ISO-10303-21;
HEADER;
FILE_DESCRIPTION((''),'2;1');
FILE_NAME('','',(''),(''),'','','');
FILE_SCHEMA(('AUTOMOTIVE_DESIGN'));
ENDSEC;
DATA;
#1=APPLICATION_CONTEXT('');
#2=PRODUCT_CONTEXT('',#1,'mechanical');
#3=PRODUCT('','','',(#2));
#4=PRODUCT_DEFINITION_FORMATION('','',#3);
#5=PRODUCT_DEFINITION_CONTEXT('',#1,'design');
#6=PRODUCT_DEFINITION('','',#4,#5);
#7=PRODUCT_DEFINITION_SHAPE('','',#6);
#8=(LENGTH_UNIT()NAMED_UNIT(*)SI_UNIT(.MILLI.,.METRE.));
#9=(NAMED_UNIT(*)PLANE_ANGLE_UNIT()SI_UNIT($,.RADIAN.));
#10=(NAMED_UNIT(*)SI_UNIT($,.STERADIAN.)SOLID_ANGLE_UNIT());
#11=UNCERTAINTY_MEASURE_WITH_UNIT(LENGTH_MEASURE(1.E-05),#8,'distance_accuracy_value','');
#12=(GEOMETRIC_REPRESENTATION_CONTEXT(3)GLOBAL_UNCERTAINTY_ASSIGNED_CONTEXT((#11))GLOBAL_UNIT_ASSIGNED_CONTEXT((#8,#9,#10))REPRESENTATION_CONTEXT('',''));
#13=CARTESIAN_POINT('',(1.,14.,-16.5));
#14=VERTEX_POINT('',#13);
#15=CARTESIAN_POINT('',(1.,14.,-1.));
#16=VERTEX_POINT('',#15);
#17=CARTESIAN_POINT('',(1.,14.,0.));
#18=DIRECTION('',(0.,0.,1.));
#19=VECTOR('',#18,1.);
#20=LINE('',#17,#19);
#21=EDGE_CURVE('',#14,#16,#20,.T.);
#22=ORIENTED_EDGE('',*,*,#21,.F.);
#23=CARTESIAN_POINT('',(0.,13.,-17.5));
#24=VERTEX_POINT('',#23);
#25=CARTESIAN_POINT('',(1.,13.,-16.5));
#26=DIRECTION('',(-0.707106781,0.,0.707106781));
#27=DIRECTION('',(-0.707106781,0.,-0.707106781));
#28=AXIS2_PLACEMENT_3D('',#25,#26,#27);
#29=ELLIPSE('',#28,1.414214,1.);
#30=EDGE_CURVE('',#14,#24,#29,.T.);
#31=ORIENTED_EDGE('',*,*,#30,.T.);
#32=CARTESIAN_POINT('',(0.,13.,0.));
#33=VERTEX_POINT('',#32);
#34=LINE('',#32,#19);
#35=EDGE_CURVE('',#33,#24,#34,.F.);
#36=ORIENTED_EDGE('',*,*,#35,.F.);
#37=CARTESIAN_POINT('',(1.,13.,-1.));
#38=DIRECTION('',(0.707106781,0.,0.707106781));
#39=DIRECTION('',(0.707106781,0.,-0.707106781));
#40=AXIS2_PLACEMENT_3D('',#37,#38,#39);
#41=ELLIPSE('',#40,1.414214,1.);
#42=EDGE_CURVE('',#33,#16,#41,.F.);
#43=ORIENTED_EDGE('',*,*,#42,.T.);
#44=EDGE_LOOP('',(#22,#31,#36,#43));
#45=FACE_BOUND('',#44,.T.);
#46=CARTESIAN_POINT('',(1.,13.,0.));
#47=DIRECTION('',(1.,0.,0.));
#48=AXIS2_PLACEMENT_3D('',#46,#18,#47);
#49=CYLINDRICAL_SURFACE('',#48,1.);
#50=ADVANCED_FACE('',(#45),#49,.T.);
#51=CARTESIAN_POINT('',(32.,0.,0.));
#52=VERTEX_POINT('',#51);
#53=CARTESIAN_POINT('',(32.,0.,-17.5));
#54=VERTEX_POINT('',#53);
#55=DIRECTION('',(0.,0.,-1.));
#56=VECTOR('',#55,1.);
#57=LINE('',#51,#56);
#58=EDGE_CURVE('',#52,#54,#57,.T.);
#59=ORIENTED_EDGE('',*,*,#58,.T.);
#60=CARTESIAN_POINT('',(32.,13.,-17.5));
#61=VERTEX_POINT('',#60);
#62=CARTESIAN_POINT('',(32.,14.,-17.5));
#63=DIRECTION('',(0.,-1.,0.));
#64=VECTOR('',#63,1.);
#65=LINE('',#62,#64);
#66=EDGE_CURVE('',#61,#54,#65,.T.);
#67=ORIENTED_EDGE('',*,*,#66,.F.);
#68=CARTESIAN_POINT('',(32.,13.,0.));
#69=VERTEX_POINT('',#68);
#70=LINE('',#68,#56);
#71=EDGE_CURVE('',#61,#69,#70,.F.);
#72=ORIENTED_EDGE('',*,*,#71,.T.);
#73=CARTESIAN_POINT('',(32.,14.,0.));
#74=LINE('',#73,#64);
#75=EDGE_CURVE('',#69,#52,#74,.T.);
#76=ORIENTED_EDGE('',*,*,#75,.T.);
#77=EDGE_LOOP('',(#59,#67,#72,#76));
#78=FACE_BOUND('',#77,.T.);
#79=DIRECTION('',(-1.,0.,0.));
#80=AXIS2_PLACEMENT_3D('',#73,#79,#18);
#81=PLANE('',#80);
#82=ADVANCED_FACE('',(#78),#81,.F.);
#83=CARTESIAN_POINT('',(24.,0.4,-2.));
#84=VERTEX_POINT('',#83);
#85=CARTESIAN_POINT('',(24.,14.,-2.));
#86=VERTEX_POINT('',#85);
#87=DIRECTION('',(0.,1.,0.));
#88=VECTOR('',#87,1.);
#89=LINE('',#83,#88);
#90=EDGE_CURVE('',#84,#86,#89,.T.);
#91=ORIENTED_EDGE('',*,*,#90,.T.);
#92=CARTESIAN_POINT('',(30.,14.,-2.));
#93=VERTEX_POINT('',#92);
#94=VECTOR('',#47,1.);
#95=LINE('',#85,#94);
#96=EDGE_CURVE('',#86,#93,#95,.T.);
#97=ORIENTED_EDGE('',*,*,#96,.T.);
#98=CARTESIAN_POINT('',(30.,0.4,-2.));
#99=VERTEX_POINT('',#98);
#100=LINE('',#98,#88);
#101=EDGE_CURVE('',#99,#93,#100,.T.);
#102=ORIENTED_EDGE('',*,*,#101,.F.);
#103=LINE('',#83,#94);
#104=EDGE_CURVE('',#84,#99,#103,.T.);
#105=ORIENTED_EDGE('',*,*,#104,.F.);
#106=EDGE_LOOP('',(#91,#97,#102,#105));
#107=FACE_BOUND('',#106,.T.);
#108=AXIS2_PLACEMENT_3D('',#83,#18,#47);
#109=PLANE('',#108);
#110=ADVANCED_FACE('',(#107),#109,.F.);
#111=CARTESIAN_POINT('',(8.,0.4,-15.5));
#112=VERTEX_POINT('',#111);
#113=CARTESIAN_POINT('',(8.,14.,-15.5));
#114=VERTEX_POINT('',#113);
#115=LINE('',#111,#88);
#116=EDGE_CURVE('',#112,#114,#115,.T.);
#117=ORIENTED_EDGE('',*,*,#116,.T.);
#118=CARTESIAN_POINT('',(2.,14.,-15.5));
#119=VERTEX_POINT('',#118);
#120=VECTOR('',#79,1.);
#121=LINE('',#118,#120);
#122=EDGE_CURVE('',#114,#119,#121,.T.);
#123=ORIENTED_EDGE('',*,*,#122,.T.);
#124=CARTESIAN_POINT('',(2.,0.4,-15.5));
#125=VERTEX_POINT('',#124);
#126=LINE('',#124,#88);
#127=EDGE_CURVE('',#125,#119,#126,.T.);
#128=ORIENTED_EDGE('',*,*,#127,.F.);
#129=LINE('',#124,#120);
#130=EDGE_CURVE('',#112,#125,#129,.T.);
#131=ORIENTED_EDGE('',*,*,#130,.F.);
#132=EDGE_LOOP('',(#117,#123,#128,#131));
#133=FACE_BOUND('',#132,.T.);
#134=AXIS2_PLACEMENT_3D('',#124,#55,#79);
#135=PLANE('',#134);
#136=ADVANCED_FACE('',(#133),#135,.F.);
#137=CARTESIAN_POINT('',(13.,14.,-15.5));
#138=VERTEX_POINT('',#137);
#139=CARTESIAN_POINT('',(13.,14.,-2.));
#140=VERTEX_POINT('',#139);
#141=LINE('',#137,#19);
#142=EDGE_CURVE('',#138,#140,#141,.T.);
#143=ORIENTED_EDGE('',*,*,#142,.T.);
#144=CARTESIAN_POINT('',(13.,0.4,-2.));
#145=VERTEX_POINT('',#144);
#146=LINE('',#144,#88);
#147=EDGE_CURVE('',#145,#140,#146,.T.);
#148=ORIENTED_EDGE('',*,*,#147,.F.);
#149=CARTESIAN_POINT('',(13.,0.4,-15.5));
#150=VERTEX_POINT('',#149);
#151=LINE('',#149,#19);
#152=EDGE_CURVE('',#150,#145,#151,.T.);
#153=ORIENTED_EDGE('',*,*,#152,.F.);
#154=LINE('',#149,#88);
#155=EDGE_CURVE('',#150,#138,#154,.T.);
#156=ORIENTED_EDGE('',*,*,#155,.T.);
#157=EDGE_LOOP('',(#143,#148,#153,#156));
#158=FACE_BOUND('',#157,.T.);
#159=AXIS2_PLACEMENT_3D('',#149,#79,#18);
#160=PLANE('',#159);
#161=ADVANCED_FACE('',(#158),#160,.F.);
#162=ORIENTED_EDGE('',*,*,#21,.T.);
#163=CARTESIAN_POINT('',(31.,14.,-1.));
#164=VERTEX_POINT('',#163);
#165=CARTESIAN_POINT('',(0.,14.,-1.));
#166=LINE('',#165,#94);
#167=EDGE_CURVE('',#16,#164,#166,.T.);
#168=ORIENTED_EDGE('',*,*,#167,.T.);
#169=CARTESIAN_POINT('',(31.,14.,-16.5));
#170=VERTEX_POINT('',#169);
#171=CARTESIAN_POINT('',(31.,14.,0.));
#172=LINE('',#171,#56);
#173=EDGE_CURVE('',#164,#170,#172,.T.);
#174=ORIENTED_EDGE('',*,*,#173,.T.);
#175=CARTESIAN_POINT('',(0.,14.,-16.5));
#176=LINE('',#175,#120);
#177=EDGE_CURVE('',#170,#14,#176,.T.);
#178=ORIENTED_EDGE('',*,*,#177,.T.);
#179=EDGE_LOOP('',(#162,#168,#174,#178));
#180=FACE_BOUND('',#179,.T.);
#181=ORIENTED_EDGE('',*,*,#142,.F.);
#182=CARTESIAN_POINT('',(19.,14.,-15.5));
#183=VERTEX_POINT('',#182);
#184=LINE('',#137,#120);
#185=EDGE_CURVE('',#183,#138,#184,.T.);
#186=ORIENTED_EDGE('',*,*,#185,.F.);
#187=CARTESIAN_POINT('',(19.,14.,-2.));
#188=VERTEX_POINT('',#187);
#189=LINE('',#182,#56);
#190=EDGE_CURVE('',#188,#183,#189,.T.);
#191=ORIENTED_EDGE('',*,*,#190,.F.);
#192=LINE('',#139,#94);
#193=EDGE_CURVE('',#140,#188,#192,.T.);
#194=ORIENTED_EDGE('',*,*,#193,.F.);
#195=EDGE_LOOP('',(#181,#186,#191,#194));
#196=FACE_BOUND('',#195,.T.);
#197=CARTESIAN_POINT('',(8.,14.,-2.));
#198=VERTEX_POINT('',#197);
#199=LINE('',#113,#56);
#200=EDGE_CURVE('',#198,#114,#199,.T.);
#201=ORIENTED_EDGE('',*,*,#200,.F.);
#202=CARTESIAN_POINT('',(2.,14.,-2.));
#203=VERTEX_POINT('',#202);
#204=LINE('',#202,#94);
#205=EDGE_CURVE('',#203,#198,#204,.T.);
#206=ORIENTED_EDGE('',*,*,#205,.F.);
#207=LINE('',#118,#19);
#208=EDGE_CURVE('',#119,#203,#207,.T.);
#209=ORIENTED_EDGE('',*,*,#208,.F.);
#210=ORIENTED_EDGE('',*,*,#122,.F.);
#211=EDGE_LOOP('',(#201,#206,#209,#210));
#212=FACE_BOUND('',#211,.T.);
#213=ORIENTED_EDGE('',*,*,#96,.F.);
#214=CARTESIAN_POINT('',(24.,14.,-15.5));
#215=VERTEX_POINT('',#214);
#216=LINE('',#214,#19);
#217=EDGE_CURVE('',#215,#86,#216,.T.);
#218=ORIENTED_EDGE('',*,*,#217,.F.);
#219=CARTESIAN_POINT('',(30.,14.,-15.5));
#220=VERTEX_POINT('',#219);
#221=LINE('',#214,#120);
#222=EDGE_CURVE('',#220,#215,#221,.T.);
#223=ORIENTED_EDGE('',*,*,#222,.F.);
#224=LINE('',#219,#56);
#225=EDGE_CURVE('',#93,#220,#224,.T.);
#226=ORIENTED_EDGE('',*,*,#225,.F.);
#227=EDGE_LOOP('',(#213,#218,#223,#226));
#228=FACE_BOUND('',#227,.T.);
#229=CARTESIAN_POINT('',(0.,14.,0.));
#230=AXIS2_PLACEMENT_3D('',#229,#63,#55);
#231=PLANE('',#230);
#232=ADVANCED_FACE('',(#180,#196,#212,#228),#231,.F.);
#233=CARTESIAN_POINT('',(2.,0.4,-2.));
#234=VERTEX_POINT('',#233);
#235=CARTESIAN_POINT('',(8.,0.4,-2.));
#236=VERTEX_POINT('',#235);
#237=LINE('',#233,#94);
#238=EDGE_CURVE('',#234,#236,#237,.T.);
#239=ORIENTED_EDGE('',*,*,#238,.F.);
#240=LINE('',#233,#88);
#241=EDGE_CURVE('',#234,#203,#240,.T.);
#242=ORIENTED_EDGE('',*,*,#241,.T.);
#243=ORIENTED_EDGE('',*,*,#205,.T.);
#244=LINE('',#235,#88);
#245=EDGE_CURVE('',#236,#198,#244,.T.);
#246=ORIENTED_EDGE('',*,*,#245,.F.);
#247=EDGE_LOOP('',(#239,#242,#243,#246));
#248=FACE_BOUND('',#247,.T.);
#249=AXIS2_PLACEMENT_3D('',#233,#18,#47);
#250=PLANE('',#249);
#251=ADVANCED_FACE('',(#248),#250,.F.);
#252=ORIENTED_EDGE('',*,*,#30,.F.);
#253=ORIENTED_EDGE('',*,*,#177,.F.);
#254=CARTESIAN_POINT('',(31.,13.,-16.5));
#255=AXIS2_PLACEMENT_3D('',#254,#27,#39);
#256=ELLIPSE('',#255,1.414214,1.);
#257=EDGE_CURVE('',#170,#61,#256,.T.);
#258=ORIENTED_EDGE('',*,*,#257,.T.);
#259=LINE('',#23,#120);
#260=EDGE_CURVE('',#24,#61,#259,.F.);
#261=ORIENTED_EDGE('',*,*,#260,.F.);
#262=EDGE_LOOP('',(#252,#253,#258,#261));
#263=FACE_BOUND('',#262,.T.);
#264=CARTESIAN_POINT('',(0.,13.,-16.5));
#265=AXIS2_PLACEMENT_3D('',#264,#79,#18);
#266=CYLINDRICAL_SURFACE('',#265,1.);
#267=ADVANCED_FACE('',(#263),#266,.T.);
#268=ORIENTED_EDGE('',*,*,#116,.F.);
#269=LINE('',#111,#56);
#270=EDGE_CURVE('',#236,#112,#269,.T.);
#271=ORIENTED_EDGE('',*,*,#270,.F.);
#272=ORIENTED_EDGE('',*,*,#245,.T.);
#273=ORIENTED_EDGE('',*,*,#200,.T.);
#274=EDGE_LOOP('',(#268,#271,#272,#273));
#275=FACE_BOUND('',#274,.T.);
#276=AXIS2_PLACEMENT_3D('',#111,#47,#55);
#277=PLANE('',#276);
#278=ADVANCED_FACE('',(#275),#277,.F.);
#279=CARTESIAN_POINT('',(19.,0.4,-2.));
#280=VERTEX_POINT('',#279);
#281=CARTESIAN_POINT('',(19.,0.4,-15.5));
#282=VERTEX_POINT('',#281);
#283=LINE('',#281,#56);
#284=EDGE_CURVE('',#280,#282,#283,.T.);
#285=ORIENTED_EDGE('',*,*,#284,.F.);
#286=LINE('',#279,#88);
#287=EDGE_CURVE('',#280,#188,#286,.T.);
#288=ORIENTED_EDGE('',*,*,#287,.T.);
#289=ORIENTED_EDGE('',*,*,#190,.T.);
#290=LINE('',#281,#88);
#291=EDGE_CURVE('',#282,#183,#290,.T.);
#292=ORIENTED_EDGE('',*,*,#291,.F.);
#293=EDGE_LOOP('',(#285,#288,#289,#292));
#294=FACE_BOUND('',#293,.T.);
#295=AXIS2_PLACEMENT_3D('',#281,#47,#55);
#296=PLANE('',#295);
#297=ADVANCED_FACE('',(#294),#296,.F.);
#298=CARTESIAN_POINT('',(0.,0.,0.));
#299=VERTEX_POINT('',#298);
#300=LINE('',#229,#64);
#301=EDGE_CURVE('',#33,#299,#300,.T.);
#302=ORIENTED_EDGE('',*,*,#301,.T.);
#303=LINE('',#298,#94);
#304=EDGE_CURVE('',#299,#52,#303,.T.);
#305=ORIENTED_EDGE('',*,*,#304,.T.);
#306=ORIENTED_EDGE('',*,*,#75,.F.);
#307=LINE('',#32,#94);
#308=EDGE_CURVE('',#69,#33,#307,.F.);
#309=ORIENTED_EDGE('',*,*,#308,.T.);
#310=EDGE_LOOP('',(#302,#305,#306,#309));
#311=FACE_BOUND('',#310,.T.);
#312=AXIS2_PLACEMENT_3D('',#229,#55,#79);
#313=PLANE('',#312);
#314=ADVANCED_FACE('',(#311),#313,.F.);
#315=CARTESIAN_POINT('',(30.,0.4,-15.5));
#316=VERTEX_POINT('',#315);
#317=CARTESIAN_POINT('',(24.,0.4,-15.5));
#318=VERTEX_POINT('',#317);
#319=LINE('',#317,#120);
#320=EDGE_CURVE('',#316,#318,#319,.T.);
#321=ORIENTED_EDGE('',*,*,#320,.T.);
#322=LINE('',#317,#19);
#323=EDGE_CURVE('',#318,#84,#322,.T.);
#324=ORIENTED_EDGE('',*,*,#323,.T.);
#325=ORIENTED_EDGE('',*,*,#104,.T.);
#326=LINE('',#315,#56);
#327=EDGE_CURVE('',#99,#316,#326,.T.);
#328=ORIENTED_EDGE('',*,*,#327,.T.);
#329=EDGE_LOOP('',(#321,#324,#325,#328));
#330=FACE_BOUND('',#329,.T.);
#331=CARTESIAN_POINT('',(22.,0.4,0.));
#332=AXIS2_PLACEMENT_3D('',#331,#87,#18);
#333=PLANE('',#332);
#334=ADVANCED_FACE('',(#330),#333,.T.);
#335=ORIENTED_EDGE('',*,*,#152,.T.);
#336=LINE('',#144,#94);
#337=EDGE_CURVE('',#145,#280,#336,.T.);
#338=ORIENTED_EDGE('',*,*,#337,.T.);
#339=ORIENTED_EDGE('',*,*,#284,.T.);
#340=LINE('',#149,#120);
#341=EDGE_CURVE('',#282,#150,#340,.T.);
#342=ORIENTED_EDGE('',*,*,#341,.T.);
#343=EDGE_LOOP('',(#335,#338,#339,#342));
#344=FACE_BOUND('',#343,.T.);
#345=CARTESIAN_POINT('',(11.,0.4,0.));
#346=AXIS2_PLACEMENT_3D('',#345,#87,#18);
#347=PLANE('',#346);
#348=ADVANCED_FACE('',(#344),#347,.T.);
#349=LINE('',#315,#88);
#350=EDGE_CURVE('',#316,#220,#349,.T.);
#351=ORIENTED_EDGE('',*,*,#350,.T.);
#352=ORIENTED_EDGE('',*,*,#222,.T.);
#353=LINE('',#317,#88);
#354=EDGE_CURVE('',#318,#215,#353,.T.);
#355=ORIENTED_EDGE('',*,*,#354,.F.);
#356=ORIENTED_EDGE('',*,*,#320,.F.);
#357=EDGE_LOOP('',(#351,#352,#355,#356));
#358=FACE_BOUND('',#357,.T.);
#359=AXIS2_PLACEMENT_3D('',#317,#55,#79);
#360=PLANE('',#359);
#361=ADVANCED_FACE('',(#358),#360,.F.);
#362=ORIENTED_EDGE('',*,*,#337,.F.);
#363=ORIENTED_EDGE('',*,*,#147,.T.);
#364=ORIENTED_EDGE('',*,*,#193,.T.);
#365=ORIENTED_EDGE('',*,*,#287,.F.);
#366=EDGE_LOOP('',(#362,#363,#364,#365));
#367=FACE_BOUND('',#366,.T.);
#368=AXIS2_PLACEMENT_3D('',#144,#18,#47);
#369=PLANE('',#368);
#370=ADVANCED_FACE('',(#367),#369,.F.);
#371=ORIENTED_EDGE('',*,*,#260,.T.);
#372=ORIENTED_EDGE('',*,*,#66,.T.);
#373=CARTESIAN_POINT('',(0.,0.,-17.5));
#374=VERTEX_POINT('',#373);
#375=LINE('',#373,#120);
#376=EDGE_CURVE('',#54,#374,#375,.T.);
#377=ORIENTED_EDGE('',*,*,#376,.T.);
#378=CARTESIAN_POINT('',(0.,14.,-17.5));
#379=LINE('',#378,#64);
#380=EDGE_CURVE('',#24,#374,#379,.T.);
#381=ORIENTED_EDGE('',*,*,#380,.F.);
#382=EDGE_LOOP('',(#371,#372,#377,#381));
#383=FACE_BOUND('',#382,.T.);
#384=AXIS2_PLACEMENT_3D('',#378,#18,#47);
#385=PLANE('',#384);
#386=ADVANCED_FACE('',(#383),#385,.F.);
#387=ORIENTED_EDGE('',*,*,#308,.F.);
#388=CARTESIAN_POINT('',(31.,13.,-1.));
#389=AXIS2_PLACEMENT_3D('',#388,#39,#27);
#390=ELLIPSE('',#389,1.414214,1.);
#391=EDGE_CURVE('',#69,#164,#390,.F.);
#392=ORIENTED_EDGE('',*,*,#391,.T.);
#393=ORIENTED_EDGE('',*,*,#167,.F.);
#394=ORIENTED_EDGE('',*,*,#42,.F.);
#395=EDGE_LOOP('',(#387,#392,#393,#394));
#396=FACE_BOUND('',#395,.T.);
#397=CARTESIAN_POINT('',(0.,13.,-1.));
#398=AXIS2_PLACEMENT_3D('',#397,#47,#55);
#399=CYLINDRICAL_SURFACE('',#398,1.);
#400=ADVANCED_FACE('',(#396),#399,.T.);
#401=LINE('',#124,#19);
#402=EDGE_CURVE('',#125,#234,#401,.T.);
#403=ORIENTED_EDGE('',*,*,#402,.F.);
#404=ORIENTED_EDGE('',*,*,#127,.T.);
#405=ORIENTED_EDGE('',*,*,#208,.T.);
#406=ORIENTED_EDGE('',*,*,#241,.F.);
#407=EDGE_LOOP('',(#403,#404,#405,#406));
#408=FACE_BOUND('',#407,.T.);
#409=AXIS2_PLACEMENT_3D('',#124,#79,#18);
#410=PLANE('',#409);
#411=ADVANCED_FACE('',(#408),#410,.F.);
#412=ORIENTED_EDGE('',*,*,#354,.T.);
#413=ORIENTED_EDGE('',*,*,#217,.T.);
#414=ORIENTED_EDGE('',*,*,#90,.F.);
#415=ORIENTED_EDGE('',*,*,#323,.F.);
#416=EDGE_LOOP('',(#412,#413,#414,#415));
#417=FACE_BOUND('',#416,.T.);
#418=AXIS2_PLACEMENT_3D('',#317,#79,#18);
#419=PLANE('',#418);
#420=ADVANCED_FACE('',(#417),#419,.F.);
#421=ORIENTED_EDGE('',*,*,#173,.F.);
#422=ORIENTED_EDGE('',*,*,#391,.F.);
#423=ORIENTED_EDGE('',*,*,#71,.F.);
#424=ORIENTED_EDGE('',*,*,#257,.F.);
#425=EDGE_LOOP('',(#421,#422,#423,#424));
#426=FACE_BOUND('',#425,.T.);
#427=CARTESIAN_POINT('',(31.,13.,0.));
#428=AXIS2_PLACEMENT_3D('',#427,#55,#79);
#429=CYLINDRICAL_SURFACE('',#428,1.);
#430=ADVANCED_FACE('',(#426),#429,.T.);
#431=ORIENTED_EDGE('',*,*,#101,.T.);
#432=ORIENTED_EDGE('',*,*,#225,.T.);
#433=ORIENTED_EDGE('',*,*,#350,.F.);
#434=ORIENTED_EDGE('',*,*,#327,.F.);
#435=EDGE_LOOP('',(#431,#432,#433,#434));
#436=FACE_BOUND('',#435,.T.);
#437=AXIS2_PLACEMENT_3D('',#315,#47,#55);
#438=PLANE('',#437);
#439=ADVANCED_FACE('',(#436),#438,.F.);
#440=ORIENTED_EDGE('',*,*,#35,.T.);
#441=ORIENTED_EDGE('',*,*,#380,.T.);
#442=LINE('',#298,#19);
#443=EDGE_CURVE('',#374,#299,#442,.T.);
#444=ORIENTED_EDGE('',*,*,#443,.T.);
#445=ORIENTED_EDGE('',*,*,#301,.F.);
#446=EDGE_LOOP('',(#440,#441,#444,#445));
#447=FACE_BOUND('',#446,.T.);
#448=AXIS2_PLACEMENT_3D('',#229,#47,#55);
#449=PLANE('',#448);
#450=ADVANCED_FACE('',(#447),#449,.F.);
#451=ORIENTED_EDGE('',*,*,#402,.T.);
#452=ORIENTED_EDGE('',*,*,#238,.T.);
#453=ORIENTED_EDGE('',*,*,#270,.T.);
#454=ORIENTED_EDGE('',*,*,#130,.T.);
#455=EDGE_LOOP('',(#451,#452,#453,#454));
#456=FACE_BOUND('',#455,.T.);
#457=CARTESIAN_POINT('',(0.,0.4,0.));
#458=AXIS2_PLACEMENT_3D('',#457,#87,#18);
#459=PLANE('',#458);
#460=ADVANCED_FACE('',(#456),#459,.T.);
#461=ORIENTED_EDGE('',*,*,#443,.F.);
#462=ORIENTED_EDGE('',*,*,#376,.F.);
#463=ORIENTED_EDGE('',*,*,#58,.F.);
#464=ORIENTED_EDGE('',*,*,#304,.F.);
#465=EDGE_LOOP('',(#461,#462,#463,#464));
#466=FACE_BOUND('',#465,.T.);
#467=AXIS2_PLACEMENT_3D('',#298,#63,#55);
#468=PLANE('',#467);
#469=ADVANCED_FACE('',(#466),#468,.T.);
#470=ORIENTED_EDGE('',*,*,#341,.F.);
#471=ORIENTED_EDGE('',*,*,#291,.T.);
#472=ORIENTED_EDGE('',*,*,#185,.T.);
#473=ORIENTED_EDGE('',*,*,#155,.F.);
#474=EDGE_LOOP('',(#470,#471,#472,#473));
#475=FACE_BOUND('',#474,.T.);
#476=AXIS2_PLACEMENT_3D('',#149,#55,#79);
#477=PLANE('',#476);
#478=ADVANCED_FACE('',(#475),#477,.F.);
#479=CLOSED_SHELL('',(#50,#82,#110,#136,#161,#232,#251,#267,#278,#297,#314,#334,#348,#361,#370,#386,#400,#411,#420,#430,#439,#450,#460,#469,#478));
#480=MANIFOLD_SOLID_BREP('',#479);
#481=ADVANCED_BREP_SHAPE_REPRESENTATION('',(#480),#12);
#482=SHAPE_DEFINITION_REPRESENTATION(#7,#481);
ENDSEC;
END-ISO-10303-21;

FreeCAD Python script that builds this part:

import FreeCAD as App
import Part
import Sketcher
from FreeCAD import Vector
Q = App.Units.Quantity


def edges_at(feature, points):
    """Names of the edges that pass closest to the given points."""
    edges = feature.Shape.Edges
    near = lambda p: min(range(len(edges)), key=lambda i: edges[i].distToShape(Part.Vertex(*p))[0])
    return sorted({f"Edge{near(p) + 1}" for p in points})


def add_polygon(sketch, points):
    """Adds a closed chain of lines whose ends are joined by coincident constraints."""
    first, n = sketch.GeometryCount, len(points)
    for a, b in zip(points, points[1:] + points[:1]):
        sketch.addGeometry(Part.LineSegment(App.Vector(*a, 0), App.Vector(*b, 0)), False)
    for i in range(n):
        sketch.addConstraint(Sketcher.Constraint("Coincident", first + i, 2, first + (i + 1) % n, 1))

doc = App.newDocument("Part")
body = doc.addObject("PartDesign::Body", "Body")

sketch1 = doc.addObject("Sketcher::SketchObject", "Sketch")
body.addObject(sketch1)
sketch1.AttachmentSupport = (doc.XZ_Plane, [""])
sketch1.MapMode = "FlatFace"
add_polygon(sketch1, [(0, -18), (0, 0), (32, 0), (32, -18)])
sketch1.addConstraint([
    Sketcher.Constraint("Vertical", 0),
    Sketcher.Constraint("Horizontal", 1),
    Sketcher.Constraint("Vertical", 2),
    Sketcher.Constraint("Horizontal", 3),
    Sketcher.Constraint("Coincident", 0, 2, -1, 1),
    Sketcher.Constraint("DistanceX", 1, 1, 1, 2, Q("32 mm")),
    Sketcher.Constraint("DistanceY", 0, 1, 0, 2, Q("17.5 mm")),
])
pad1 = doc.addObject("PartDesign::Pad", "Pad")
body.addObject(pad1)
pad1.Profile = sketch1
pad1.Length = 14
pad1.Reversed = True

sketch2 = doc.addObject("Sketcher::SketchObject", "Sketch001")
body.addObject(sketch2)
sketch2.AttachmentSupport = (doc.XZ_Plane, [""])
sketch2.MapMode = "FlatFace"
sketch2.AttachmentOffset = App.Placement(Vector(0, 0, -14), App.Rotation())
add_polygon(sketch2, [(2, -16), (2, -2), (8, -2), (8, -16)])
sketch2.addConstraint([
    Sketcher.Constraint("Vertical", 0),
    Sketcher.Constraint("Horizontal", 1),
    Sketcher.Constraint("Vertical", 2),
    Sketcher.Constraint("Horizontal", 3),
    Sketcher.Constraint("DistanceX", 1, 1, 1, 2, Q("6 mm")),
    Sketcher.Constraint("DistanceY", 0, 1, 0, 2, Q("13.5 mm")),
    Sketcher.Constraint("DistanceX", -1, 1, 0, 2, Q("2 mm")),
    Sketcher.Constraint("DistanceY", 0, 2, -1, 1, Q("2 mm")),
])
pocket1 = doc.addObject("PartDesign::Pocket", "Pocket")
body.addObject(pocket1)
pocket1.Profile = sketch2
pocket1.Length = 13.6
pocket1.Reversed = True
doc.recompute()

linearpattern = doc.addObject("PartDesign::LinearPattern", "LinearPattern")
body.addObject(linearpattern)
linearpattern.Originals = [pocket1]
linearpattern.Direction = (doc.X_Axis, [""])
linearpattern.Mode = "offset"
linearpattern.Offset = 11
linearpattern.Occurrences = 3
body.Tip = linearpattern
doc.recompute()

fillet = doc.addObject("PartDesign::Fillet", "Fillet")
body.addObject(fillet)
fillet.Base = (linearpattern, edges_at(linearpattern, [
    (32, 14, -8.75),
    (16, 14, -17.5),
    (0, 14, -8.75),
    (16, 14, 0),
]))
fillet.Radius = 1

doc.recompute()
